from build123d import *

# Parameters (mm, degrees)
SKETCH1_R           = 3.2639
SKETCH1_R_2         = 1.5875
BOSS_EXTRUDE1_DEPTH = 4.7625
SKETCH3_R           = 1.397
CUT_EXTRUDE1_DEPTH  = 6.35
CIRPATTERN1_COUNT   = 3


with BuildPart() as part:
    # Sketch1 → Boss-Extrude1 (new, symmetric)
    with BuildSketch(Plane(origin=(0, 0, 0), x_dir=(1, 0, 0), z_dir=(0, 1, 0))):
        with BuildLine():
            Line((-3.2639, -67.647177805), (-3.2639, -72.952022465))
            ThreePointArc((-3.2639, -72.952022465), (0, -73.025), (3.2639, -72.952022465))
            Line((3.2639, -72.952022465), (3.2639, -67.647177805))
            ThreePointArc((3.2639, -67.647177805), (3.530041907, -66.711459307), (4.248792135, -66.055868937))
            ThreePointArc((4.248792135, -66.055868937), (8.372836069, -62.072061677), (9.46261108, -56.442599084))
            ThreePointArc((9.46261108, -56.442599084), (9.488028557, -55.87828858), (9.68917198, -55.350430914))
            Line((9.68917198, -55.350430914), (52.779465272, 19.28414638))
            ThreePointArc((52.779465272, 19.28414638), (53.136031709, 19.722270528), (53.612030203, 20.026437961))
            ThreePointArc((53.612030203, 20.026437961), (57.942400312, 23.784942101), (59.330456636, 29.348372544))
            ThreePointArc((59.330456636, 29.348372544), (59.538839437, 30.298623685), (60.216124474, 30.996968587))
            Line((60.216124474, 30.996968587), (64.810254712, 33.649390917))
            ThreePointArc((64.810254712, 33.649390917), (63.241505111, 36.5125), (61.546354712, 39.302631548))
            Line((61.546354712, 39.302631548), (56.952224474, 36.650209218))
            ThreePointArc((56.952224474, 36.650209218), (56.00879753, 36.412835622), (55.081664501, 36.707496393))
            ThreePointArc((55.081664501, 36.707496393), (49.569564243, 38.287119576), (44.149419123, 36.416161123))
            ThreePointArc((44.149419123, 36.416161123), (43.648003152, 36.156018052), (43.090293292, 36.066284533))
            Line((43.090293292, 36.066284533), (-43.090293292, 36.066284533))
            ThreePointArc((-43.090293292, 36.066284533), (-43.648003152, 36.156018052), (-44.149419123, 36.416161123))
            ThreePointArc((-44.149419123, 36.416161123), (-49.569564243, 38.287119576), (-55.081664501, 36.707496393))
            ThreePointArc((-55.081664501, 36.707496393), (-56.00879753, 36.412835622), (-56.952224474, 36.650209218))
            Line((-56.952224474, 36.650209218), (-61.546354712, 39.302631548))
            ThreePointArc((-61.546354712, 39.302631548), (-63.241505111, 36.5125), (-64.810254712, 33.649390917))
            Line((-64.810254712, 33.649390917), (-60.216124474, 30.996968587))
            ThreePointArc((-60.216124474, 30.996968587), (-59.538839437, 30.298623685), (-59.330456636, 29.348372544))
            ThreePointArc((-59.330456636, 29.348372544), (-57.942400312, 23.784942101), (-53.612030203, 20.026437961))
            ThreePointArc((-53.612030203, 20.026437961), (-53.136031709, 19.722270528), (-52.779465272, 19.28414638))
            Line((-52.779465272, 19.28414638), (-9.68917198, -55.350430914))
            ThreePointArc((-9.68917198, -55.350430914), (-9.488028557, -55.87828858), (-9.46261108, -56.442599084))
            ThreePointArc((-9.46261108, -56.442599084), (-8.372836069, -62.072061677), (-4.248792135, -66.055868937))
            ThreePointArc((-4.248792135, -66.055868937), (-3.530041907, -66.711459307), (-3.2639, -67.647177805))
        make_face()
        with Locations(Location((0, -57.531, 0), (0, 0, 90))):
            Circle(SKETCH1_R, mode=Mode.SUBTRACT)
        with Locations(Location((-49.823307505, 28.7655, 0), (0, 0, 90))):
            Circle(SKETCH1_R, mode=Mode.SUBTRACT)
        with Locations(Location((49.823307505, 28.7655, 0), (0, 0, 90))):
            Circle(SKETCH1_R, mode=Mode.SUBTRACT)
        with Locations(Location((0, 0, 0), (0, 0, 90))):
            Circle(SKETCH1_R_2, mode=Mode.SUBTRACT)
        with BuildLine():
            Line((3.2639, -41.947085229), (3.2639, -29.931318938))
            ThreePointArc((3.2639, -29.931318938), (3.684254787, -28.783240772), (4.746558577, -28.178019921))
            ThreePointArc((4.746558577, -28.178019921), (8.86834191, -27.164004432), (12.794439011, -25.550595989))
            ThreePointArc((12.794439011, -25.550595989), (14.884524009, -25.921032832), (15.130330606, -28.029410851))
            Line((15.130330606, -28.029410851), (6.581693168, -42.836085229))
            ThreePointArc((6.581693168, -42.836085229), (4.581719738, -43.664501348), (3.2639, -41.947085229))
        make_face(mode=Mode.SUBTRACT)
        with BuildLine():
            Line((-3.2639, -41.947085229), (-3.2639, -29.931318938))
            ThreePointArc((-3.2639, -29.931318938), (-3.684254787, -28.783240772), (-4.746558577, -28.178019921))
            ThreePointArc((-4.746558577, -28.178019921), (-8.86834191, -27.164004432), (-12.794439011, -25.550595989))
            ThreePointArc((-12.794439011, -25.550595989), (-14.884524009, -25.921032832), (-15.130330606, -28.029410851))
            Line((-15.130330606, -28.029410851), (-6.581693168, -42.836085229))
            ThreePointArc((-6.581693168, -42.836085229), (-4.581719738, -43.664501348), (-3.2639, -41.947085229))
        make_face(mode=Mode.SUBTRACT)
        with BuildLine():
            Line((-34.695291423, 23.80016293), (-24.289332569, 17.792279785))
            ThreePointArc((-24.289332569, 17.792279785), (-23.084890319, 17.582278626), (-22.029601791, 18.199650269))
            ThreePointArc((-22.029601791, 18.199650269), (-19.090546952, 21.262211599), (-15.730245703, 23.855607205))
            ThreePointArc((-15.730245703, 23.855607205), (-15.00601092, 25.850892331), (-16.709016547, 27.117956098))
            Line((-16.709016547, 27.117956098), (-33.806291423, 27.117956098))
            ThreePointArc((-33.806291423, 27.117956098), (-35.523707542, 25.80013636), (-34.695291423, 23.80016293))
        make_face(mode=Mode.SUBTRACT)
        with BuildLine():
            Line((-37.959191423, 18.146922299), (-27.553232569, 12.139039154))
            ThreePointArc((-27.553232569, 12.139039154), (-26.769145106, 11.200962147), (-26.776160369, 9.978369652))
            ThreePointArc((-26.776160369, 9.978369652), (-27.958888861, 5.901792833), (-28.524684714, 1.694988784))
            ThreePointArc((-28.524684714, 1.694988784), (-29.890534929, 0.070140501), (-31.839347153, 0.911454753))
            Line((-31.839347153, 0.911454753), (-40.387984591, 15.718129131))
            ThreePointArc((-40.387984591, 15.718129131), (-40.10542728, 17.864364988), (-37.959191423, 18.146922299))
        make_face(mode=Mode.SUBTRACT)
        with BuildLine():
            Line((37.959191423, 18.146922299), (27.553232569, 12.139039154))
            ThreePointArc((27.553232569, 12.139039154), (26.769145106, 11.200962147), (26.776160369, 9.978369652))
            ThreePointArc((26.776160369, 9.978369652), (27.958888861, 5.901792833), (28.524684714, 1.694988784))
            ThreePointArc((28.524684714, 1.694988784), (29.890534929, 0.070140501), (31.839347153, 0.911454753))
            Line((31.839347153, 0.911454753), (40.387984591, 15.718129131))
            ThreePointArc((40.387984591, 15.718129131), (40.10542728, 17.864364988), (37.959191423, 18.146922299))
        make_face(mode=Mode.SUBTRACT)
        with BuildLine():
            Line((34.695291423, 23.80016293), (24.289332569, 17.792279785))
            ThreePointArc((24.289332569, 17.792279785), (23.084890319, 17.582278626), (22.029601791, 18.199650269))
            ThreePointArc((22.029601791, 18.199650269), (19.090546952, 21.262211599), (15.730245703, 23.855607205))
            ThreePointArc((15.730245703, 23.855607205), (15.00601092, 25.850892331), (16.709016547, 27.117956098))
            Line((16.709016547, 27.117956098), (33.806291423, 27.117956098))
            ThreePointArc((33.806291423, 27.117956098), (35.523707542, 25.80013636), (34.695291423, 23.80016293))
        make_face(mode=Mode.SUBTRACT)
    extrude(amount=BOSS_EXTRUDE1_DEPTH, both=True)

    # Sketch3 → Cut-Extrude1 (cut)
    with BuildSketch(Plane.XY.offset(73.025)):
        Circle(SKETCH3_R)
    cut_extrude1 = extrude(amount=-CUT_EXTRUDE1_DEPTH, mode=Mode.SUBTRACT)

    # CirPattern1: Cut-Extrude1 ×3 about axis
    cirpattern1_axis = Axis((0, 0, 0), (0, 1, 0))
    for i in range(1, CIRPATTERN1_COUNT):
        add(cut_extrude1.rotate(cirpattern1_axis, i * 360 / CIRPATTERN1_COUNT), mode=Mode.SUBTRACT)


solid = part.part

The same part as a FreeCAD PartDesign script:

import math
import FreeCAD as App
import Part
import Sketcher
Q = App.Units.Quantity

doc = App.newDocument("Part")
body = doc.addObject("PartDesign::Body", "Body")

sketch1 = body.newObject("Sketcher::SketchObject", "Sketch")
sketch1.AttachmentSupport = (doc.getObject("XZ_Plane"), [""])
sketch1.MapMode = "FlatFace"
sketch1.addGeometry([
    Part.LineSegment(App.Vector(-3.3, 67.6, 0), App.Vector(-3.3, 73, 0)),
    Part.ArcOfCircle(Part.Circle(App.Vector(0, 0, 0), App.Vector(0, 0, 1), 73), math.radians(87.44), math.radians(92.56)),
    Part.LineSegment(App.Vector(3.3, 73, 0), App.Vector(3.3, 67.6, 0)),
    Part.ArcOfCircle(Part.Circle(App.Vector(5, 67.6, 0), App.Vector(0, 0, 1), 1.8), math.radians(180), math.radians(244)),
    Part.ArcOfCircle(Part.Circle(App.Vector(0, 57.5, 0), App.Vector(0, 0, 1), 9.5), math.radians(-7), math.radians(64)),
    Part.ArcOfCircle(Part.Circle(App.Vector(11.2, 56.2, 0), App.Vector(0, 0, 1), 1.8), math.radians(173), math.radians(210)),
    Part.LineSegment(App.Vector(9.7, 55.4, 0), App.Vector(52.8, -19.3, 0)),
    Part.ArcOfCircle(Part.Circle(App.Vector(54.3, -18.4, 0), App.Vector(0, 0, 1), 1.8), math.radians(-150), math.radians(-113)),
    Part.ArcOfCircle(Part.Circle(App.Vector(49.8, -28.8, 0), App.Vector(0, 0, 1), 9.5), math.radians(-4), math.radians(67)),
    Part.ArcOfCircle(Part.Circle(App.Vector(61.1, -29.5, 0), App.Vector(0, 0, 1), 1.8), math.radians(176), math.radians(240)),
    Part.LineSegment(App.Vector(60.2, -31, 0), App.Vector(64.8, -33.6, 0)),
    Part.ArcOfCircle(Part.Circle(App.Vector(0, 0, 0), App.Vector(0, 0, 1), 73), math.radians(-32.56), math.radians(-27.44)),
    Part.LineSegment(App.Vector(61.5, -39.3, 0), App.Vector(57, -36.7, 0)),
    Part.ArcOfCircle(Part.Circle(App.Vector(56.1, -38.2, 0), App.Vector(0, 0, 1), 1.8), math.radians(60), math.radians(124)),
    Part.ArcOfCircle(Part.Circle(App.Vector(49.8, -28.8, 0), App.Vector(0, 0, 1), 9.5), math.radians(-127), math.radians(-56)),
    Part.ArcOfCircle(Part.Circle(App.Vector(43.1, -37.8, 0), App.Vector(0, 0, 1), 1.8), math.radians(53), math.radians(90)),
    Part.LineSegment(App.Vector(43.1, -36.1, 0), App.Vector(-43.1, -36.1, 0)),
    Part.ArcOfCircle(Part.Circle(App.Vector(-43.1, -37.8, 0), App.Vector(0, 0, 1), 1.8), math.radians(90), math.radians(127)),
    Part.ArcOfCircle(Part.Circle(App.Vector(-49.8, -28.8, 0), App.Vector(0, 0, 1), 9.5), math.radians(-124), math.radians(-53)),
    Part.ArcOfCircle(Part.Circle(App.Vector(-56.1, -38.2, 0), App.Vector(0, 0, 1), 1.8), math.radians(56), math.radians(120)),
    Part.LineSegment(App.Vector(-57, -36.7, 0), App.Vector(-61.5, -39.3, 0)),
    Part.ArcOfCircle(Part.Circle(App.Vector(0, 0, 0), App.Vector(0, 0, 1), 73), math.radians(-152.56), math.radians(-147.44)),
    Part.LineSegment(App.Vector(-64.8, -33.6, 0), App.Vector(-60.2, -31, 0)),
    Part.ArcOfCircle(Part.Circle(App.Vector(-61.1, -29.5, 0), App.Vector(0, 0, 1), 1.8), math.radians(-60), math.radians(4)),
    Part.ArcOfCircle(Part.Circle(App.Vector(-49.8, -28.8, 0), App.Vector(0, 0, 1), 9.5), math.radians(113), math.radians(184)),
    Part.ArcOfCircle(Part.Circle(App.Vector(-54.3, -18.4, 0), App.Vector(0, 0, 1), 1.8), math.radians(-67), math.radians(-30)),
    Part.LineSegment(App.Vector(-52.8, -19.3, 0), App.Vector(-9.7, 55.4, 0)),
    Part.ArcOfCircle(Part.Circle(App.Vector(-11.2, 56.2, 0), App.Vector(0, 0, 1), 1.8), math.radians(-30), math.radians(7)),
    Part.ArcOfCircle(Part.Circle(App.Vector(0, 57.5, 0), App.Vector(0, 0, 1), 9.5), math.radians(116), math.radians(187)),
    Part.ArcOfCircle(Part.Circle(App.Vector(-5, 67.6, 0), App.Vector(0, 0, 1), 1.8), math.radians(-64), math.radians(0)),
    Part.Circle(App.Vector(0, 57.5, 0), App.Vector(0, 0, 1), 3.3),
    Part.LineSegment(App.Vector(-3.3, 29.9, 0), App.Vector(-3.3, 41.9, 0)),
    Part.ArcOfCircle(Part.Circle(App.Vector(-5, 41.9, 0), App.Vector(0, 0, 1), 1.8), math.radians(0), math.radians(150)),
    Part.LineSegment(App.Vector(-6.6, 42.8, 0), App.Vector(-15.1, 28, 0)),
    Part.ArcOfCircle(Part.Circle(App.Vector(-13.6, 27.1, 0), App.Vector(0, 0, 1), 1.8), math.radians(150), math.radians(297)),
    Part.ArcOfCircle(Part.Circle(App.Vector(0, 0, 0), App.Vector(0, 0, 1), 28.6), math.radians(99.56), math.radians(116.6)),
    Part.ArcOfCircle(Part.Circle(App.Vector(-5, 29.9, 0), App.Vector(0, 0, 1), 1.8), math.radians(-80), math.radians(0)),
    Part.ArcOfCircle(Part.Circle(App.Vector(5, 41.9, 0), App.Vector(0, 0, 1), 1.8), math.radians(30), math.radians(180)),
    Part.LineSegment(App.Vector(3.3, 41.9, 0), App.Vector(3.3, 29.9, 0)),
    Part.ArcOfCircle(Part.Circle(App.Vector(5, 29.9, 0), App.Vector(0, 0, 1), 1.8), math.radians(180), math.radians(260)),
    Part.ArcOfCircle(Part.Circle(App.Vector(0, 0, 0), App.Vector(0, 0, 1), 28.6), math.radians(63.4), math.radians(80.44)),
    Part.ArcOfCircle(Part.Circle(App.Vector(13.6, 27.1, 0), App.Vector(0, 0, 1), 1.8), math.radians(-117), math.radians(30)),
    Part.LineSegment(App.Vector(15.1, 28, 0), App.Vector(6.6, 42.8, 0)),
    Part.Circle(App.Vector(0, 0, 0), App.Vector(0, 0, 1), 1.6),
    Part.ArcOfCircle(Part.Circle(App.Vector(-38.8, -16.6, 0), App.Vector(0, 0, 1), 1.8), math.radians(150), math.radians(300)),
    Part.LineSegment(App.Vector(-38, -18.1, 0), App.Vector(-27.6, -12.1, 0)),
    Part.ArcOfCircle(Part.Circle(App.Vector(-28.4, -10.6, 0), App.Vector(0, 0, 1), 1.8), math.radians(-60), math.radians(20)),
    Part.ArcOfCircle(Part.Circle(App.Vector(0, 0, 0), App.Vector(0, 0, 1), 28.6), math.radians(-176.6), math.radians(-159.56)),
    Part.ArcOfCircle(Part.Circle(App.Vector(-30.3, -1.8, 0), App.Vector(0, 0, 1), 1.8), math.radians(3), math.radians(150)),
    Part.LineSegment(App.Vector(-31.8, -0.9, 0), App.Vector(-40.4, -15.7, 0)),
    Part.Circle(App.Vector(-49.8, -28.8, 0), App.Vector(0, 0, 1), 3.3),
    Part.LineSegment(App.Vector(-24.3, -17.8, 0), App.Vector(-34.7, -23.8, 0)),
    Part.ArcOfCircle(Part.Circle(App.Vector(-33.8, -25.3, 0), App.Vector(0, 0, 1), 1.8), math.radians(120), math.radians(270)),
    Part.LineSegment(App.Vector(-33.8, -27.1, 0), App.Vector(-16.7, -27.1, 0)),
    Part.ArcOfCircle(Part.Circle(App.Vector(-16.7, -25.3, 0), App.Vector(0, 0, 1), 1.8), math.radians(-90), math.radians(57)),
    Part.ArcOfCircle(Part.Circle(App.Vector(0, 0, 0), App.Vector(0, 0, 1), 28.6), math.radians(-140.44), math.radians(-123.4)),
    Part.ArcOfCircle(Part.Circle(App.Vector(-23.4, -19.3, 0), App.Vector(0, 0, 1), 1.8), math.radians(40), math.radians(120)),
    Part.ArcOfCircle(Part.Circle(App.Vector(33.8, -25.3, 0), App.Vector(0, 0, 1), 1.8), math.radians(-90), math.radians(60)),
    Part.LineSegment(App.Vector(34.7, -23.8, 0), App.Vector(24.3, -17.8, 0)),
    Part.ArcOfCircle(Part.Circle(App.Vector(23.4, -19.3, 0), App.Vector(0, 0, 1), 1.8), math.radians(60), math.radians(140)),
    Part.ArcOfCircle(Part.Circle(App.Vector(0, 0, 0), App.Vector(0, 0, 1), 28.6), math.radians(-56.6), math.radians(-39.56)),
    Part.ArcOfCircle(Part.Circle(App.Vector(16.7, -25.3, 0), App.Vector(0, 0, 1), 1.8), math.radians(123), math.radians(270)),
    Part.LineSegment(App.Vector(16.7, -27.1, 0), App.Vector(33.8, -27.1, 0)),
    Part.LineSegment(App.Vector(27.6, -12.1, 0), App.Vector(38, -18.1, 0)),
    Part.ArcOfCircle(Part.Circle(App.Vector(38.8, -16.6, 0), App.Vector(0, 0, 1), 1.8), math.radians(-120), math.radians(30)),
    Part.LineSegment(App.Vector(40.4, -15.7, 0), App.Vector(31.8, -0.9, 0)),
    Part.ArcOfCircle(Part.Circle(App.Vector(30.3, -1.8, 0), App.Vector(0, 0, 1), 1.8), math.radians(30), math.radians(177)),
    Part.ArcOfCircle(Part.Circle(App.Vector(0, 0, 0), App.Vector(0, 0, 1), 28.6), math.radians(-20.44), math.radians(-3.4)),
    Part.ArcOfCircle(Part.Circle(App.Vector(28.4, -10.6, 0), App.Vector(0, 0, 1), 1.8), math.radians(160), math.radians(240)),
    Part.Circle(App.Vector(49.8, -28.8, 0), App.Vector(0, 0, 1), 3.3),
], False)
sketch1.addConstraint([
    Sketcher.Constraint("Coincident", 0, 2, 1, 2),
    Sketcher.Constraint("Coincident", 1, 1, 2, 1),
    Sketcher.Constraint("Tangent", 2, 2, 3, 1),
    Sketcher.Constraint("Tangent", 3, 2, 4, 2),
    Sketcher.Constraint("Tangent", 4, 1, 5, 1),
    Sketcher.Constraint("Tangent", 5, 2, 6, 1),
    Sketcher.Constraint("Tangent", 6, 2, 7, 1),
    Sketcher.Constraint("Tangent", 7, 2, 8, 2),
    Sketcher.Constraint("Tangent", 8, 1, 9, 1),
    Sketcher.Constraint("Tangent", 9, 2, 10, 1),
    Sketcher.Constraint("Coincident", 10, 2, 11, 2),
    Sketcher.Constraint("Coincident", 11, 1, 12, 1),
    Sketcher.Constraint("Tangent", 12, 2, 13, 1),
    Sketcher.Constraint("Tangent", 13, 2, 14, 2),
    Sketcher.Constraint("Tangent", 14, 1, 15, 1),
    Sketcher.Constraint("Tangent", 15, 2, 16, 1),
    Sketcher.Constraint("Tangent", 16, 2, 17, 1),
    Sketcher.Constraint("Tangent", 17, 2, 18, 2),
    Sketcher.Constraint("Tangent", 18, 1, 19, 1),
    Sketcher.Constraint("Tangent", 19, 2, 20, 1),
    Sketcher.Constraint("Coincident", 20, 2, 21, 2),
    Sketcher.Constraint("Coincident", 21, 1, 22, 1),
    Sketcher.Constraint("Tangent", 22, 2, 23, 1),
    Sketcher.Constraint("Tangent", 23, 2, 24, 2),
    Sketcher.Constraint("Tangent", 24, 1, 25, 1),
    Sketcher.Constraint("Tangent", 25, 2, 26, 1),
    Sketcher.Constraint("Tangent", 26, 2, 27, 1),
    Sketcher.Constraint("Tangent", 27, 2, 28, 2),
    Sketcher.Constraint("Tangent", 28, 1, 29, 1),
    Sketcher.Constraint("Tangent", 29, 2, 0, 1),
    Sketcher.Constraint("Tangent", 31, 2, 32, 1),
    Sketcher.Constraint("Tangent", 32, 2, 33, 1),
    Sketcher.Constraint("Tangent", 33, 2, 34, 1),
    Sketcher.Constraint("Tangent", 34, 2, 35, 2),
    Sketcher.Constraint("Tangent", 35, 1, 36, 1),
    Sketcher.Constraint("Tangent", 36, 2, 31, 1),
    Sketcher.Constraint("Tangent", 37, 2, 38, 1),
    Sketcher.Constraint("Tangent", 38, 2, 39, 1),
    Sketcher.Constraint("Tangent", 39, 2, 40, 2),
    Sketcher.Constraint("Tangent", 40, 1, 41, 1),
    Sketcher.Constraint("Tangent", 41, 2, 42, 1),
    Sketcher.Constraint("Tangent", 42, 2, 37, 1),
    Sketcher.Constraint("Tangent", 44, 2, 45, 1),
    Sketcher.Constraint("Tangent", 45, 2, 46, 1),
    Sketcher.Constraint("Tangent", 46, 2, 47, 2),
    Sketcher.Constraint("Tangent", 47, 1, 48, 1),
    Sketcher.Constraint("Tangent", 48, 2, 49, 1),
    Sketcher.Constraint("Tangent", 49, 2, 44, 1),
    Sketcher.Constraint("Tangent", 51, 2, 52, 1),
    Sketcher.Constraint("Tangent", 52, 2, 53, 1),
    Sketcher.Constraint("Tangent", 53, 2, 54, 1),
    Sketcher.Constraint("Tangent", 54, 2, 55, 2),
    Sketcher.Constraint("Tangent", 55, 1, 56, 1),
    Sketcher.Constraint("Tangent", 56, 2, 51, 1),
    Sketcher.Constraint("Tangent", 57, 2, 58, 1),
    Sketcher.Constraint("Tangent", 58, 2, 59, 1),
    Sketcher.Constraint("Tangent", 59, 2, 60, 2),
    Sketcher.Constraint("Tangent", 60, 1, 61, 1),
    Sketcher.Constraint("Tangent", 61, 2, 62, 1),
    Sketcher.Constraint("Tangent", 62, 2, 57, 1),
    Sketcher.Constraint("Tangent", 63, 2, 64, 1),
    Sketcher.Constraint("Tangent", 64, 2, 65, 1),
    Sketcher.Constraint("Tangent", 65, 2, 66, 1),
    Sketcher.Constraint("Tangent", 66, 2, 67, 2),
    Sketcher.Constraint("Tangent", 67, 1, 68, 1),
    Sketcher.Constraint("Tangent", 68, 2, 63, 1),
    Sketcher.Constraint("Vertical", 0),
    Sketcher.Constraint("Vertical", 2),
    Sketcher.Constraint("Horizontal", 16),
    Sketcher.Constraint("Vertical", 31),
    Sketcher.Constraint("Vertical", 38),
    Sketcher.Constraint("Horizontal", 53),
    Sketcher.Constraint("Horizontal", 62),
    Sketcher.Constraint("Coincident", 1, 3, -1, 1),
    Sketcher.Constraint("Coincident", 11, 3, -1, 1),
    Sketcher.Constraint("Coincident", 21, 3, -1, 1),
    Sketcher.Constraint("Coincident", 35, 3, -1, 1),
    Sketcher.Constraint("Coincident", 40, 3, -1, 1),
    Sketcher.Constraint("Coincident", 43, 3, -1, 1),
    Sketcher.Constraint("Coincident", 47, 3, -1, 1),
    Sketcher.Constraint("Coincident", 55, 3, -1, 1),
    Sketcher.Constraint("Coincident", 60, 3, -1, 1),
    Sketcher.Constraint("Coincident", 67, 3, -1, 1),
    Sketcher.Constraint("Coincident", 14, 3, 8, 3),
    Sketcher.Constraint("Coincident", 24, 3, 18, 3),
    Sketcher.Constraint("Coincident", 28, 3, 4, 3),
    Sketcher.Constraint("Coincident", 30, 3, 4, 3),
    Sketcher.Constraint("Coincident", 50, 3, 18, 3),
    Sketcher.Constraint("Coincident", 69, 3, 8, 3),
    Sketcher.Constraint("Equal", 3, 5),
    Sketcher.Constraint("Equal", 5, 7),
    Sketcher.Constraint("Equal", 4, 8),
    Sketcher.Constraint("Equal", 7, 9),
    Sketcher.Constraint("Equal", 1, 11),
    Sketcher.Constraint("Equal", 9, 13),
    Sketcher.Constraint("Equal", 8, 14),
    Sketcher.Constraint("Equal", 13, 15),
    Sketcher.Constraint("Equal", 15, 17),
    Sketcher.Constraint("Equal", 14, 18),
    Sketcher.Constraint("Equal", 17, 19),
    Sketcher.Constraint("Equal", 11, 21),
    Sketcher.Constraint("Equal", 19, 23),
    Sketcher.Constraint("Equal", 18, 24),
    Sketcher.Constraint("Equal", 23, 25),
    Sketcher.Constraint("Equal", 25, 27),
    Sketcher.Constraint("Equal", 24, 28),
    Sketcher.Constraint("Equal", 27, 29),
    Sketcher.Constraint("Equal", 29, 32),
    Sketcher.Constraint("Equal", 32, 34),
    Sketcher.Constraint("Equal", 34, 36),
    Sketcher.Constraint("Equal", 36, 37),
    Sketcher.Constraint("Equal", 37, 39),
    Sketcher.Constraint("Equal", 35, 40),
    Sketcher.Constraint("Equal", 39, 41),
    Sketcher.Constraint("Equal", 41, 44),
    Sketcher.Constraint("Equal", 44, 46),
    Sketcher.Constraint("Equal", 40, 47),
    Sketcher.Constraint("Equal", 46, 48),
    Sketcher.Constraint("Equal", 30, 50),
    Sketcher.Constraint("Equal", 48, 52),
    Sketcher.Constraint("Equal", 52, 54),
    Sketcher.Constraint("Equal", 47, 55),
    Sketcher.Constraint("Equal", 54, 56),
    Sketcher.Constraint("Equal", 56, 57),
    Sketcher.Constraint("Equal", 57, 59),
    Sketcher.Constraint("Equal", 55, 60),
    Sketcher.Constraint("Equal", 59, 61),
    Sketcher.Constraint("Equal", 61, 64),
    Sketcher.Constraint("Equal", 64, 66),
    Sketcher.Constraint("Equal", 60, 67),
    Sketcher.Constraint("Equal", 66, 68),
    Sketcher.Constraint("Equal", 50, 69),
    Sketcher.Constraint("Symmetric", 8, 3, 18, 3, -2),
    Sketcher.Constraint("Symmetric", 5, 3, 27, 3, -2),
    Sketcher.Constraint("Symmetric", 32, 3, 37, 3, -2),
    Sketcher.Constraint("Symmetric", 52, 3, 57, 3, -2),
    Sketcher.Constraint("Symmetric", 44, 3, 64, 3, -2),
    Sketcher.Constraint("Symmetric", 12, 2, 19, 2, -2),
    Sketcher.Constraint("Symmetric", 9, 2, 22, 2, -2),
    Sketcher.Constraint("Parallel", 10, 12),
    Sketcher.Constraint("Perpendicular", 6, 20),
    Sketcher.Constraint("Perpendicular", 12, 26),
    Sketcher.Constraint("Parallel", 26, 33),
    Sketcher.Constraint("Perpendicular", 22, 42),
    Sketcher.Constraint("Perpendicular", 42, 45),
    Sketcher.Constraint("Parallel", 33, 49),
    Sketcher.Constraint("Parallel", 45, 51),
    Sketcher.Constraint("Perpendicular", 49, 58),
    Sketcher.Constraint("Parallel", 58, 63),
    Sketcher.Constraint("Perpendicular", 51, 65),
    Sketcher.Constraint("Horizontal", 3, 3, 29, 3),
    Sketcher.Constraint("Vertical", 29, 3, 32, 3),
    Sketcher.Constraint("Equal", 10, 12),
    Sketcher.Constraint("Equal", 42, 49),
    Sketcher.Constraint("Equal", 45, 51),
    Sketcher.Constraint("Radius", 3, Q("0.07 in")),
    Sketcher.Constraint("Diameter", 30, Q("0.257 in")),
    Sketcher.Constraint("Diameter", 43, Q("0.125 in")),
    Sketcher.Constraint("Angle", 6, Q("-60 deg")),
    Sketcher.Constraint("Radius", 1, Q("2.875 in")),
    Sketcher.Constraint("Radius", 4, Q("0.375 in")),
    Sketcher.Constraint("Radius", 35, Q("1.125 in")),
    Sketcher.Constraint("DistanceY", -1, 1, 4, 3, Q("2.265 in")),
    Sketcher.Constraint("DistanceX", -1, 1, 3, 3, Q("0.1985 in")),
    Sketcher.Constraint("DistanceY", 8, 3, -1, 1, Q("1.1325 in")),
    Sketcher.Constraint("DistanceY", -1, 1, 4, 1, Q("56.442599 mm")),
    Sketcher.Constraint("DistanceX", 55, 1, -1, 1, Q("22.029602 mm")),
    Sketcher.Constraint("DistanceX", 16, 2, 16, 1, Q("86.180587 mm")),
    Sketcher.Constraint("DistanceX", 53, 1, 53, 2, Q("17.097275 mm")),
    Sketcher.Constraint("DistanceY", 31, 1, 31, 2, Q("12.015766 mm")),
    Sketcher.Constraint("DistanceX", -1, 1, 7, 3, Q("54.319258 mm")),
    Sketcher.Constraint("DistanceY", 9, 2, -1, 1, Q("30.996969 mm")),
])
pad1 = body.newObject("PartDesign::Pad", "Pad")
pad1.Profile = sketch1
pad1.Length = Q("0.375 in")
pad1.Midplane = True

sketch2 = body.newObject("Sketcher::SketchObject", "Sketch001")
sketch2.AttachmentSupport = (doc.getObject("XY_Plane"), [""])
sketch2.MapMode = "FlatFace"
sketch2.AttachmentOffset = App.Placement(App.Vector(0, 0, 2.875 * 25.4), App.Rotation())
sketch2.addGeometry(Part.Circle(App.Vector(0, 0, 0), App.Vector(0, 0, 1), 1.4), False)
sketch2.addConstraint([
    Sketcher.Constraint("Coincident", 0, 3, -1, 1),
    Sketcher.Constraint("Diameter", 0, Q("0.11 in")),
])
pocket1 = body.newObject("PartDesign::Pocket", "Pocket")
pocket1.Profile = sketch2
pocket1.Length = Q("0.25 in")
doc.recompute()

polarpattern = body.newObject("PartDesign::PolarPattern", "PolarPattern")
polarpattern.Originals = [pocket1]
polarpattern.Axis = (doc.getObject("Y_Axis"), [""])
polarpattern.Angle = 360
polarpattern.Occurrences = 3
body.Tip = polarpattern

doc.recompute()
